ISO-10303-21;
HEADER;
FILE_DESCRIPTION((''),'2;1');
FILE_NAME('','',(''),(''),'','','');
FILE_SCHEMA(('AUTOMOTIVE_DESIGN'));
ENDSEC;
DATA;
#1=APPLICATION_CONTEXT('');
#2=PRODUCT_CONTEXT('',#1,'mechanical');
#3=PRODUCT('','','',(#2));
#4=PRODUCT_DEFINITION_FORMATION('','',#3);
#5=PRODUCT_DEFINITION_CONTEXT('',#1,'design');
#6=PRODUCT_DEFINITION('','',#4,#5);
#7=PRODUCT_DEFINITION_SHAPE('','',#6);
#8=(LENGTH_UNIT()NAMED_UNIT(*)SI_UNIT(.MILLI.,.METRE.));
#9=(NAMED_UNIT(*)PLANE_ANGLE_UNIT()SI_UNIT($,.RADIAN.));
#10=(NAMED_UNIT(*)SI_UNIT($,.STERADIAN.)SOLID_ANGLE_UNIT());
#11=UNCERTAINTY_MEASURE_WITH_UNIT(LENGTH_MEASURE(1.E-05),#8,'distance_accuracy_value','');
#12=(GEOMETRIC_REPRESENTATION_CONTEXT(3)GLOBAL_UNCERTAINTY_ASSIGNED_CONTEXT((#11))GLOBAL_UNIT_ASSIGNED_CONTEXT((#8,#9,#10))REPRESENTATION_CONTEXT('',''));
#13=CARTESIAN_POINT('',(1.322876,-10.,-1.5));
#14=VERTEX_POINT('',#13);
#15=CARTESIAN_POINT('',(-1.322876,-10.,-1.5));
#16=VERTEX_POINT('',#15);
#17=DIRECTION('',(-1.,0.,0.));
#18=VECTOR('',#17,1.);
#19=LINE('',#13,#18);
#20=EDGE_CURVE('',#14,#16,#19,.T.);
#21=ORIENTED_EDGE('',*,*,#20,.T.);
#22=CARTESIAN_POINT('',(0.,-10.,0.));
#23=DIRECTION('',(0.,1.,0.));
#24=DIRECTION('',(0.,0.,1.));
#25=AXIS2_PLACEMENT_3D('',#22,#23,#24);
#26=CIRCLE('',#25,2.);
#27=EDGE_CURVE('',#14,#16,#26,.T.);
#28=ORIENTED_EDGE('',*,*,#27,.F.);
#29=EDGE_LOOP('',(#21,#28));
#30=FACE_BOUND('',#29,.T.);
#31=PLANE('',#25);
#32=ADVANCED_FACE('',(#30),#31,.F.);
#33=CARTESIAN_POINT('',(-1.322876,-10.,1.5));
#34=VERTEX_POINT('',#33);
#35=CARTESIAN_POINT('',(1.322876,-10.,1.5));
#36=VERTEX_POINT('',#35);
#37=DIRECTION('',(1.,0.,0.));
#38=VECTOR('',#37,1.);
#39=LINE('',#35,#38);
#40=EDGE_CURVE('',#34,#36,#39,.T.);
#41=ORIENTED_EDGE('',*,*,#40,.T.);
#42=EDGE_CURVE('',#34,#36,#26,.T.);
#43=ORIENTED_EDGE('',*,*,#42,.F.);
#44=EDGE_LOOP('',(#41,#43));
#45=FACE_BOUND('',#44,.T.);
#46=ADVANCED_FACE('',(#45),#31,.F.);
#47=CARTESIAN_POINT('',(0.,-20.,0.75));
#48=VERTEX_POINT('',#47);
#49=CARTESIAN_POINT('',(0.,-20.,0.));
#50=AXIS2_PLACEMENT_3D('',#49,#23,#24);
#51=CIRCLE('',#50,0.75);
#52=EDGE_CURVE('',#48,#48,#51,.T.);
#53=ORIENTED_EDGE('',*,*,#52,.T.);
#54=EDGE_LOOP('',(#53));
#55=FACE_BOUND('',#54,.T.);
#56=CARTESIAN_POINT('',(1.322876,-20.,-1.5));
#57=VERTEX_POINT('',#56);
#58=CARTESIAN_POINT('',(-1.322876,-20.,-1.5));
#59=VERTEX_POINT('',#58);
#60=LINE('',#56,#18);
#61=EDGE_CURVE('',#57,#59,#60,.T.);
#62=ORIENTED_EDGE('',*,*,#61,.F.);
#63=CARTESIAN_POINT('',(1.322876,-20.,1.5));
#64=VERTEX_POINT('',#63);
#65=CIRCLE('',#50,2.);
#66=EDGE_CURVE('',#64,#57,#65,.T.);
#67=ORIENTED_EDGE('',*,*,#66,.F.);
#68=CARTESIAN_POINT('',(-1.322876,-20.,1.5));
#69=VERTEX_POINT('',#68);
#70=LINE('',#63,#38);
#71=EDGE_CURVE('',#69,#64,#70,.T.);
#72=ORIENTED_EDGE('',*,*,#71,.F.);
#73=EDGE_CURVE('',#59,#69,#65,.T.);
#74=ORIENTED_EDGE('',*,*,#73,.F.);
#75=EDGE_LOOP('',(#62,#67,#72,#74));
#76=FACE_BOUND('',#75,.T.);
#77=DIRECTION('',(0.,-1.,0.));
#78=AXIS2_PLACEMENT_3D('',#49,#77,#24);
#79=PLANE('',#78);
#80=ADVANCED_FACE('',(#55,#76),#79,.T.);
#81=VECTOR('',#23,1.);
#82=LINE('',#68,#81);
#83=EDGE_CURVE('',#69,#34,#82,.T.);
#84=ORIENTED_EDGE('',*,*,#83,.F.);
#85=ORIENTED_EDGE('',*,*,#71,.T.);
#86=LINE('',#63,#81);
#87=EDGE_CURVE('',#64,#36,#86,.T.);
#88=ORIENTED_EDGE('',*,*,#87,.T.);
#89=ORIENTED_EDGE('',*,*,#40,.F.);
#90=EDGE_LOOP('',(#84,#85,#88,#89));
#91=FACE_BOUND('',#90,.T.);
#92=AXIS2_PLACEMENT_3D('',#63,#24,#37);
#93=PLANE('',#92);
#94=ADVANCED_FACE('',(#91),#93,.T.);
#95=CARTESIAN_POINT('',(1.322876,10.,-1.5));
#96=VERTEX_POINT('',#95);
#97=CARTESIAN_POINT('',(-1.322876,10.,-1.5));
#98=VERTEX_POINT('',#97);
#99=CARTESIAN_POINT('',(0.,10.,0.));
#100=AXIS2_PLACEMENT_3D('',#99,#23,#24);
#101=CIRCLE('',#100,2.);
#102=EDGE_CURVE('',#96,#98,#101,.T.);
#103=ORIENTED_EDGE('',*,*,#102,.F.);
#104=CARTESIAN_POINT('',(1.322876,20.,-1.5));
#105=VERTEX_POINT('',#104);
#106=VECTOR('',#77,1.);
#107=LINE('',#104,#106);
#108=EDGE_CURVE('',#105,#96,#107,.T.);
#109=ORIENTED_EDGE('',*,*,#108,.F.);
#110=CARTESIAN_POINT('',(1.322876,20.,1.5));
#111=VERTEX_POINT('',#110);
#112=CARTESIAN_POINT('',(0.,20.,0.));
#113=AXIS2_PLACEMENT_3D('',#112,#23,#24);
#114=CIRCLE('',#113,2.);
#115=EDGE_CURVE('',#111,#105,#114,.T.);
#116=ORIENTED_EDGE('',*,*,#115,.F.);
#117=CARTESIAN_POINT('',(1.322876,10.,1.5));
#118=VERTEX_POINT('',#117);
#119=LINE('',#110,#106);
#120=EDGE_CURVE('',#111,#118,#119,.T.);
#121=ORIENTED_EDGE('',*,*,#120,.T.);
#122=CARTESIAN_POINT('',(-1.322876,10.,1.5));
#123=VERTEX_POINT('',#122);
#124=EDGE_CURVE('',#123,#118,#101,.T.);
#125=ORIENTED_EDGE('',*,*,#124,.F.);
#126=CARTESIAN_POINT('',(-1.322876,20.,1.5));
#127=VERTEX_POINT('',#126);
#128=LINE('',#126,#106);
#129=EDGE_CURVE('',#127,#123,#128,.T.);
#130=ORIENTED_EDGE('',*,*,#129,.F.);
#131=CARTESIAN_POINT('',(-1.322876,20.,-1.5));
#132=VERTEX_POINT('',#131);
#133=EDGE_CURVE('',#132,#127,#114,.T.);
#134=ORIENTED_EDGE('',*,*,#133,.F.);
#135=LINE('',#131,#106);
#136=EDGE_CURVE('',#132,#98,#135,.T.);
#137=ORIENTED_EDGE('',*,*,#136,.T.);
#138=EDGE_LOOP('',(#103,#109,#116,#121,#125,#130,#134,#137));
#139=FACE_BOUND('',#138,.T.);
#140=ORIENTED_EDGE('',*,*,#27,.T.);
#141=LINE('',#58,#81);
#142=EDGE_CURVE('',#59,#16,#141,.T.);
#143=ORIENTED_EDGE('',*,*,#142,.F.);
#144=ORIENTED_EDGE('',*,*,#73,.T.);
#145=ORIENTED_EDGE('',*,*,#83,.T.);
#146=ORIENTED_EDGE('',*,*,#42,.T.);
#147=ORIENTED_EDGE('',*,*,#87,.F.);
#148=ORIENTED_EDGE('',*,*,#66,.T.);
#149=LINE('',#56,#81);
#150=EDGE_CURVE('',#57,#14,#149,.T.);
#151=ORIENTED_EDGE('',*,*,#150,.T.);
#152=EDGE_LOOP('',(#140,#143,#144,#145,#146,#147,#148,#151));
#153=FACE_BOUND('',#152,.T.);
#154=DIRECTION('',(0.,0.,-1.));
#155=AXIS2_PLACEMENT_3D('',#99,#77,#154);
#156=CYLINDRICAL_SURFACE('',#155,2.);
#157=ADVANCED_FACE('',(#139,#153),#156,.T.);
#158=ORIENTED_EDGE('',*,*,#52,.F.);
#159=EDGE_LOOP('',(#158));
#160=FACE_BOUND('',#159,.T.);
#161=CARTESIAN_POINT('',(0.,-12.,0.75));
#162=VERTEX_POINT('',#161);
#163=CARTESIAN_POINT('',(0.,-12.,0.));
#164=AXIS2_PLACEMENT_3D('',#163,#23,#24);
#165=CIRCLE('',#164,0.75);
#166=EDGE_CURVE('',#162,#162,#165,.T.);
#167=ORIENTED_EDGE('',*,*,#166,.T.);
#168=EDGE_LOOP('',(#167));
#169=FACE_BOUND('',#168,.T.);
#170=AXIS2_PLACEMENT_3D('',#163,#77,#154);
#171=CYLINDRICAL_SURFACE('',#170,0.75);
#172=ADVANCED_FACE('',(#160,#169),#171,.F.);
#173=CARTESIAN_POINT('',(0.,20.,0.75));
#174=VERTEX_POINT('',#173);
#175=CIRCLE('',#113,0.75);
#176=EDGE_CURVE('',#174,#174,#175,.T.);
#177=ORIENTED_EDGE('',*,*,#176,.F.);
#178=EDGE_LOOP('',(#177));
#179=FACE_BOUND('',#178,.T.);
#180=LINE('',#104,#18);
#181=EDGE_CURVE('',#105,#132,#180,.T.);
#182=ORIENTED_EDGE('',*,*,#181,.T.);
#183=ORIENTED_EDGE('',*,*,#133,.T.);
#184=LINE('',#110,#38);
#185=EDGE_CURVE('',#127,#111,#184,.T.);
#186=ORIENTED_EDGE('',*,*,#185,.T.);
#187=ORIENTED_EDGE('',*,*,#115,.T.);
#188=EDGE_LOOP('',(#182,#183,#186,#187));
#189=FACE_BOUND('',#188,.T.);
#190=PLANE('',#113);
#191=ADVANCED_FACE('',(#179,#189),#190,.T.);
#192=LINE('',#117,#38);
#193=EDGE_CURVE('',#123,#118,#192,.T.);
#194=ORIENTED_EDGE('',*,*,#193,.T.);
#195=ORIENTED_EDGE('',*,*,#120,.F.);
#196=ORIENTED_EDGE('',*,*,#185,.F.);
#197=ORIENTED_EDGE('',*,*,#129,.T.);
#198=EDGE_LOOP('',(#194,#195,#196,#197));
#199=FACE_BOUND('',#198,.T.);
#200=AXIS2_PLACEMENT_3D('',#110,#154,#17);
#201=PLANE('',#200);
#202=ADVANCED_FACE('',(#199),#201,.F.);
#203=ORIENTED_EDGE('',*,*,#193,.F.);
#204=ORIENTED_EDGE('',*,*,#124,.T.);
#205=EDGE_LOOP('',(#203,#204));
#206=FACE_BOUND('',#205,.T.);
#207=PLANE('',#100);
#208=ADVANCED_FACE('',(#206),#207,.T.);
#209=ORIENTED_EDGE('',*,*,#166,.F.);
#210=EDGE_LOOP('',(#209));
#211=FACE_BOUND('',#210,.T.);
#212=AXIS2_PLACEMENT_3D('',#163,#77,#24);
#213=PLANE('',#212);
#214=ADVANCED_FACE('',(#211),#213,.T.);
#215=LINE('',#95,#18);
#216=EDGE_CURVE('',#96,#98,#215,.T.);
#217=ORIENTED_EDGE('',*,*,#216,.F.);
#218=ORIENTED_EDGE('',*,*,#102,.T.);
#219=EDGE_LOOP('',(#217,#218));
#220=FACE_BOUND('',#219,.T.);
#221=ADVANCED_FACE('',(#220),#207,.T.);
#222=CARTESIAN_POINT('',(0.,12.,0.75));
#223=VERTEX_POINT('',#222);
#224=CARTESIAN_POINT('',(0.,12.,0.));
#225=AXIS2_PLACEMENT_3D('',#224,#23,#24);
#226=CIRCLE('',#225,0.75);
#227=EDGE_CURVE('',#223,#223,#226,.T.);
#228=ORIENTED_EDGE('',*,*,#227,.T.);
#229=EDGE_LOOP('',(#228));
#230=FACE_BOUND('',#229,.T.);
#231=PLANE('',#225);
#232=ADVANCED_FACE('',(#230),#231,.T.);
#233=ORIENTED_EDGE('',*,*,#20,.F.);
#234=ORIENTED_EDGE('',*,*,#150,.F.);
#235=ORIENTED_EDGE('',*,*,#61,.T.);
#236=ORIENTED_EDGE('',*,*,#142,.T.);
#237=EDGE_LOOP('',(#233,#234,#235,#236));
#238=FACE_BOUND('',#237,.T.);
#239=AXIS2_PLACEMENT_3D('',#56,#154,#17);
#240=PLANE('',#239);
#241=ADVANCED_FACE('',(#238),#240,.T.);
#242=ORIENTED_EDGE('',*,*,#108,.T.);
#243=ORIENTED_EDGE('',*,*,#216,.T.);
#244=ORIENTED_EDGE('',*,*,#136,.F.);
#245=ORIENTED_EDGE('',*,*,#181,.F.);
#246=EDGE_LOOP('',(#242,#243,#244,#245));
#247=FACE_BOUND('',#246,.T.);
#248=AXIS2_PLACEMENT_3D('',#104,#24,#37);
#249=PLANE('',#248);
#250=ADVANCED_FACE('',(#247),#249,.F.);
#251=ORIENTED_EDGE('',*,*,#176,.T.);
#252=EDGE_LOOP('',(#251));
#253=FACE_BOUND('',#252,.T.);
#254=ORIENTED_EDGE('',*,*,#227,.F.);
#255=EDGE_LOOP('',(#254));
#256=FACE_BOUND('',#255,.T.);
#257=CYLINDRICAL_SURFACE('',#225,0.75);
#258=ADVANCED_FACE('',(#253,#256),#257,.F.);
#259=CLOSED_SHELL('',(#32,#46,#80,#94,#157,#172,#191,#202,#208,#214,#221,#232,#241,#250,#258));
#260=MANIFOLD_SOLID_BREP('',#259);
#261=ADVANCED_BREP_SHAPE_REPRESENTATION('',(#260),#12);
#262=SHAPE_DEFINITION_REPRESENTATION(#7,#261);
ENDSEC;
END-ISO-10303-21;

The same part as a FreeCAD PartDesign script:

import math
import FreeCAD as App
import Part
import Sketcher

V = App.Vector

doc = App.newDocument("Part")
body = doc.addObject("PartDesign::Body", "Body")

# Sketch on XZ plane
sketch1 = body.newObject("Sketcher::SketchObject", "Sketch")
sketch1.AttachmentSupport = (doc.getObject("XZ_Plane"), [""])
sketch1.MapMode = "FlatFace"
sketch1.addGeometry(Part.Circle(V(0, 0, 0), V(0, 0, 1), 2), False)
sketch1.addConstraint([
    Sketcher.Constraint("Coincident", 0, 3, -1, 1),
    Sketcher.Constraint("Diameter", 0, 4.0),
])
pad1 = body.newObject("PartDesign::Pad", "Pad")
pad1.Profile = sketch1
pad1.Length = 20
pad1.Midplane = True

# Sketch on XZ plane
sketch2 = body.newObject("Sketcher::SketchObject", "Sketch001")
sketch2.AttachmentSupport = (doc.getObject("XZ_Plane"), [""])
sketch2.MapMode = "FlatFace"
sketch2.AttachmentOffset = App.Placement(V(0, 0, -20), App.Rotation())
sketch2.addGeometry([
    Part.LineSegment(V(1.3, -1.5, 0), V(-1.3, -1.5, 0)),
    Part.ArcOfCircle(Part.Circle(V(0, 0, 0), V(0, 0, 1), 2), math.radians(131), math.radians(229)),
    Part.LineSegment(V(-1.3, 1.5, 0), V(1.3, 1.5, 0)),
    Part.ArcOfCircle(Part.Circle(V(0, 0, 0), V(0, 0, 1), 2), math.radians(-49), math.radians(49)),
], False)
sketch2.addConstraint([
    Sketcher.Constraint("Coincident", 0, 2, 1, 2),
    Sketcher.Constraint("Coincident", 1, 1, 2, 1),
    Sketcher.Constraint("Coincident", 2, 2, 3, 2),
    Sketcher.Constraint("Coincident", 3, 1, 0, 1),
    Sketcher.Constraint("Horizontal", 0),
    Sketcher.Constraint("Horizontal", 2),
    Sketcher.Constraint("Coincident", 1, 3, -1, 1),
    Sketcher.Constraint("Coincident", 3, 3, -1, 1),
    Sketcher.Constraint("Equal", 1, 3),
    Sketcher.Constraint("Vertical", 0, 2, 1, 1),
    Sketcher.Constraint("Radius", 1, 2.0),
    Sketcher.Constraint("DistanceY", 0, 2, 1, 1, 3.0),
])
pad2 = body.newObject("PartDesign::Pad", "Pad001")
pad2.Profile = sketch2
pad2.Length = 10

# Sketch on XZ plane
sketch3 = body.newObject("Sketcher::SketchObject", "Sketch002")
sketch3.AttachmentSupport = (doc.getObject("XZ_Plane"), [""])
sketch3.MapMode = "FlatFace"
sketch3.AttachmentOffset = App.Placement(V(0, 0, -20), App.Rotation())
sketch3.addGeometry(Part.Circle(V(0, 0, 0), V(0, 0, 1), 0.8), False)
sketch3.addConstraint([
    Sketcher.Constraint("Coincident", 0, 3, -1, 1),
    Sketcher.Constraint("Diameter", 0, 1.5),
])
pocket1 = body.newObject("PartDesign::Pocket", "Pocket")
pocket1.Profile = sketch3
pocket1.Length = 8
pocket1.Reversed = True
doc.recompute()

mirrored = body.newObject("PartDesign::Mirrored", "Mirrored")
mirrored.Originals = [pad2, pocket1]
mirrored.MirrorPlane = (doc.getObject("XZ_Plane"), [""])
body.Tip = mirrored

doc.recompute()
